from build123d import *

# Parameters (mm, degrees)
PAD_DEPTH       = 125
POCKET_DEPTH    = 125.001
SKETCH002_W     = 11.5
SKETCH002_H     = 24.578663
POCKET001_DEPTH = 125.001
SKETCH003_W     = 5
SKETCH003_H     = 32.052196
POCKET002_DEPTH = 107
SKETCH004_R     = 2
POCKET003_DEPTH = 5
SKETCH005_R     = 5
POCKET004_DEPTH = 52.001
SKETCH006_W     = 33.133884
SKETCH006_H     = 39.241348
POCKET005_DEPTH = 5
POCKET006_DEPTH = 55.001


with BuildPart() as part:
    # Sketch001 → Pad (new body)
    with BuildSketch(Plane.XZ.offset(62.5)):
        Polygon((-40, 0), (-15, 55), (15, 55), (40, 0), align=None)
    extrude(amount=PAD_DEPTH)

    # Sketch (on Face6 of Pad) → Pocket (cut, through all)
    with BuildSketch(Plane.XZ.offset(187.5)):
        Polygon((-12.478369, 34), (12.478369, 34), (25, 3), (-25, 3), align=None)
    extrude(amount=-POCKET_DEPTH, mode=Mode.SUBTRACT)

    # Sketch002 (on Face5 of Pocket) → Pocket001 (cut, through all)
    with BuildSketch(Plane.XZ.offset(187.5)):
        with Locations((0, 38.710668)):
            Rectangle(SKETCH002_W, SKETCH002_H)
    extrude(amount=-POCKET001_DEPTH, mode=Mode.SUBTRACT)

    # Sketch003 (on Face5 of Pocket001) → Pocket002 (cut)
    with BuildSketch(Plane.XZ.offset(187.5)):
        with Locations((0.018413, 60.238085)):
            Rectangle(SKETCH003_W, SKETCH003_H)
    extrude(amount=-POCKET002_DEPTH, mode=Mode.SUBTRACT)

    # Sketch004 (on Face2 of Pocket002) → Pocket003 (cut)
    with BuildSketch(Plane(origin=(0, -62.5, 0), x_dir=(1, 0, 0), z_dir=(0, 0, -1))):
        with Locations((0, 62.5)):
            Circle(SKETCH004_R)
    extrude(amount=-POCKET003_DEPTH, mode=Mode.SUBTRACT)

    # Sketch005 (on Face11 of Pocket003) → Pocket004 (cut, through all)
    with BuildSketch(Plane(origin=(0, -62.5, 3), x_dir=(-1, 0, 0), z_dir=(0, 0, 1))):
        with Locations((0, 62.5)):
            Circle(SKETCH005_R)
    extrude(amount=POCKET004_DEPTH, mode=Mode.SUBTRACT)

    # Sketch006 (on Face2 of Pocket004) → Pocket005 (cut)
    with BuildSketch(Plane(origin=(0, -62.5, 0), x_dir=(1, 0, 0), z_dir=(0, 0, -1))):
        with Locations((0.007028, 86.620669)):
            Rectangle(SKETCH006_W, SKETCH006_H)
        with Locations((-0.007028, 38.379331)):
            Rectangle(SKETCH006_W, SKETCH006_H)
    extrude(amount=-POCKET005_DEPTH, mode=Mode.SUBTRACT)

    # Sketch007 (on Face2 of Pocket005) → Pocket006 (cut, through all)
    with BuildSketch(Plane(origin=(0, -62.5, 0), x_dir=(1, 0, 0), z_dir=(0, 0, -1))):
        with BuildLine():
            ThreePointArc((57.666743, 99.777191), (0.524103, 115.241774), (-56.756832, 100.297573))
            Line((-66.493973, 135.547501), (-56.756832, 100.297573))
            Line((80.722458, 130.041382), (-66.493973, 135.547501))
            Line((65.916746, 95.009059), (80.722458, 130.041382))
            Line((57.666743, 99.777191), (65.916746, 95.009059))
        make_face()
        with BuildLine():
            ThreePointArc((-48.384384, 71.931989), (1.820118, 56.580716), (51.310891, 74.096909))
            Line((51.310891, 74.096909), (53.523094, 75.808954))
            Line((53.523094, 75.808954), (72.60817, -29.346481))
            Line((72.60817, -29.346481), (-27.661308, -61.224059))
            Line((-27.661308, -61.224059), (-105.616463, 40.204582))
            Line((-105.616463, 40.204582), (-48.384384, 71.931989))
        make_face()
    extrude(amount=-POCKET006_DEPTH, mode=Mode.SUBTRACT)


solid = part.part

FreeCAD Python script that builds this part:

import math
import FreeCAD as App
import Part
import Sketcher
from FreeCAD import Vector


def add_polygon(sketch, points):
    """Adds a closed chain of lines whose ends are joined by coincident constraints."""
    first, n = sketch.GeometryCount, len(points)
    for a, b in zip(points, points[1:] + points[:1]):
        sketch.addGeometry(Part.LineSegment(App.Vector(*a, 0), App.Vector(*b, 0)), False)
    for i in range(n):
        sketch.addConstraint(Sketcher.Constraint("Coincident", first + i, 2, first + (i + 1) % n, 1))

doc = App.newDocument("Part")
params = doc.addObject("Spreadsheet::Sheet", "Params")
for row, (alias, value) in enumerate([
    ("sketch1_width", "80 mm"),
    ("sketch1_width2", "30 mm"),
    ("pad1_length", "125 mm"),
    ("sketch2_width", "50 mm"),
    ("sketch3_width", "11.5 mm"),
    ("sketch4_width", "5 mm"),
    ("pocket3_length", "107 mm"),
    ("sketch5_diameter", "4 mm"),
    ("pocket4_length", "5 mm"),
    ("sketch6_diameter", "10 mm"),
    ("pocket6_length", "5 mm"),
], start=1):
    params.set(f"A{row}", alias)
    params.set(f"B{row}", "=" + value)
    params.setAlias(f"B{row}", alias)

body = doc.addObject("PartDesign::Body", "Body")

# Sketch on XZ plane
sketch1 = body.newObject("Sketcher::SketchObject", "Sketch")
sketch1.AttachmentSupport = (doc.getObject("XZ_Plane"), [""])
sketch1.MapMode = "FlatFace"
sketch1.AttachmentOffset = App.Placement(Vector(0, 0, 62.5), App.Rotation())
add_polygon(sketch1, [(-15, 55), (-40, 0), (40, 0), (15, 55)])  # lines 0-3
sketch1.addConstraint([
    Sketcher.Constraint("Horizontal", 1),
    Sketcher.Constraint("Horizontal", 3),
    Sketcher.Constraint("Symmetric", 0, 2, 1, 2, -1, 1),
    Sketcher.Constraint("Equal", 0, 2),
    Sketcher.Constraint("DistanceX", 1, 1, 1, 2, 80.0),
    Sketcher.Constraint("DistanceX", 3, 2, 3, 1, 30.0),
    Sketcher.Constraint("DistanceY", -1, 1, 2, 2, 55.0),
])
sketch1.setExpression("Constraints[8]", "Params.sketch1_width")
sketch1.setExpression("Constraints[9]", "Params.sketch1_width2")
pad1 = body.newObject("PartDesign::Pad", "Pad")
pad1.Profile = sketch1
pad1.setExpression("Length", "Params.pad1_length")

# Sketch on XZ plane
sketch2 = body.newObject("Sketcher::SketchObject", "Sketch001")
sketch2.AttachmentSupport = (doc.getObject("XZ_Plane"), [""])
sketch2.MapMode = "FlatFace"
sketch2.AttachmentOffset = App.Placement(Vector(0, 0, 187.5), App.Rotation())
add_polygon(sketch2, [(12, 34), (-12, 34), (-25, 3), (25, 3)])  # lines 0-3
sketch2.addConstraint([
    Sketcher.Constraint("Horizontal", 0),
    Sketcher.Constraint("Horizontal", 2),
    Sketcher.Constraint("Equal", 1, 3),
    Sketcher.Constraint("DistanceX", 2, 1, 2, 2, 50.0),
    Sketcher.Constraint("DistanceY", -1, 1, 0, 2, 34.0),
    Sketcher.Constraint("DistanceX", 1, 2, -1, 1, 25.0),
    Sketcher.Constraint("DistanceY", -1, 1, 1, 2, 3.0),
    Sketcher.Constraint("DistanceX", 0, 2, 0, 1, 24.956738),
])
sketch2.setExpression("Constraints[7]", "Params.sketch2_width")
pocket1 = body.newObject("PartDesign::Pocket", "Pocket")
pocket1.Profile = sketch2
pocket1.Type = "ThroughAll"

# Sketch on XZ plane
sketch3 = body.newObject("Sketcher::SketchObject", "Sketch002")
sketch3.AttachmentSupport = (doc.getObject("XZ_Plane"), [""])
sketch3.MapMode = "FlatFace"
sketch3.AttachmentOffset = App.Placement(Vector(0, 0, 187.5), App.Rotation())
add_polygon(sketch3, [(-6, 51), (-6, 26), (6, 26), (6, 51)])  # lines 0-3
sketch3.addConstraint([
    Sketcher.Constraint("Vertical", 0),
    Sketcher.Constraint("Horizontal", 1),
    Sketcher.Constraint("Vertical", 2),
    Sketcher.Constraint("Horizontal", 3),
    Sketcher.Constraint("DistanceX", 1, 1, 1, 2, 11.5),
    Sketcher.Constraint("DistanceY", -1, 1, 2, 2, 51.0),
    Sketcher.Constraint("DistanceX", 0, 2, -1, 1, 5.75),
    Sketcher.Constraint("DistanceY", 0, 2, 0, 1, 24.578663),
])
sketch3.setExpression("Constraints[8]", "Params.sketch3_width")
pocket2 = body.newObject("PartDesign::Pocket", "Pocket001")
pocket2.Profile = sketch3
pocket2.Type = "ThroughAll"

# Sketch on XZ plane
sketch4 = body.newObject("Sketcher::SketchObject", "Sketch003")
sketch4.AttachmentSupport = (doc.getObject("XZ_Plane"), [""])
sketch4.MapMode = "FlatFace"
sketch4.AttachmentOffset = App.Placement(Vector(0, 0, 187.5), App.Rotation())
add_polygon(sketch4, [(-2, 76), (-2, 44), (3, 44), (3, 76)])  # lines 0-3
sketch4.addConstraint([
    Sketcher.Constraint("Vertical", 0),
    Sketcher.Constraint("Horizontal", 1),
    Sketcher.Constraint("Vertical", 2),
    Sketcher.Constraint("Horizontal", 3),
    Sketcher.Constraint("DistanceX", 1, 1, 1, 2, 5.0),
    Sketcher.Constraint("DistanceY", 0, 2, 0, 1, 32.052196),
    Sketcher.Constraint("DistanceX", 0, 2, -1, 1, 2.481587),
    Sketcher.Constraint("DistanceY", -1, 1, 0, 2, 44.211987),
])
sketch4.setExpression("Constraints[8]", "Params.sketch4_width")
pocket3 = body.newObject("PartDesign::Pocket", "Pocket002")
pocket3.Profile = sketch4
pocket3.setExpression("Length", "Params.pocket3_length")

# Sketch on XY plane
sketch5 = body.newObject("Sketcher::SketchObject", "Sketch004")
sketch5.AttachmentSupport = (doc.getObject("XY_Plane"), [""])
sketch5.MapMode = "FlatFace"
sketch5.addGeometry(Part.Circle(Vector(0, -125, 0), Vector(0, 0, 1), 2), False)
sketch5.addConstraint([
    Sketcher.Constraint("PointOnObject", 0, 3, -2),
    Sketcher.Constraint("Diameter", 0, 4.0),
    Sketcher.Constraint("DistanceY", 0, 3, -1, 1, 125.0),
])
sketch5.setExpression("Constraints[1]", "Params.sketch5_diameter")
pocket4 = body.newObject("PartDesign::Pocket", "Pocket003")
pocket4.Profile = sketch5
pocket4.setExpression("Length", "Params.pocket4_length")
pocket4.Reversed = True

# Sketch on XY plane
sketch6 = body.newObject("Sketcher::SketchObject", "Sketch005")
sketch6.AttachmentSupport = (doc.getObject("XY_Plane"), [""])
sketch6.MapMode = "FlatFace"
sketch6.AttachmentOffset = App.Placement(Vector(0, 0, 3), App.Rotation())
sketch6.addGeometry(Part.Circle(Vector(0, -125, 0), Vector(0, 0, 1), 5), False)
sketch6.addConstraint([
    Sketcher.Constraint("PointOnObject", 0, 3, -2),
    Sketcher.Constraint("Diameter", 0, 10.0),
    Sketcher.Constraint("DistanceY", 0, 3, -1, 1, 125.0),
])
sketch6.setExpression("Constraints[1]", "Params.sketch6_diameter")
pocket5 = body.newObject("PartDesign::Pocket", "Pocket004")
pocket5.Profile = sketch6
pocket5.Type = "ThroughAll"
pocket5.Reversed = True

# Sketch on XY plane
sketch7 = body.newObject("Sketcher::SketchObject", "Sketch006")
sketch7.AttachmentSupport = (doc.getObject("XY_Plane"), [""])
sketch7.MapMode = "FlatFace"
add_polygon(sketch7, [(-17, -169), (-17, -129), (17, -129), (17, -169)])  # lines 0-3
add_polygon(sketch7, [(-17, -121), (-17, -81), (17, -81), (17, -121)])  # lines 4-7
sketch7.addConstraint([
    Sketcher.Constraint("Vertical", 0),
    Sketcher.Constraint("Horizontal", 1),
    Sketcher.Constraint("Vertical", 2),
    Sketcher.Constraint("Horizontal", 3),
    Sketcher.Constraint("Vertical", 4),
    Sketcher.Constraint("Horizontal", 5),
    Sketcher.Constraint("Vertical", 6),
    Sketcher.Constraint("Horizontal", 7),
    Sketcher.Constraint("Equal", 3, 5),
    Sketcher.Constraint("Equal", 2, 4),
    Sketcher.Constraint("DistanceY", 4, 1, 4, 2, 39.241348),
    Sketcher.Constraint("DistanceX", 1, 1, 1, 2, 33.133884),
    Sketcher.Constraint("DistanceX", -1, 1, 1, 2, 16.57397),
    Sketcher.Constraint("DistanceX", 4, 2, -1, 1, 16.57397),
    Sketcher.Constraint("DistanceY", 0, 2, 4, 2, 48.241338),
    Sketcher.Constraint("DistanceY", 0, 2, -1, 1, 129.499995),
])
pocket6 = body.newObject("PartDesign::Pocket", "Pocket005")
pocket6.Profile = sketch7
pocket6.setExpression("Length", "Params.pocket6_length")
pocket6.Reversed = True

# Sketch on XY plane
sketch8 = body.newObject("Sketcher::SketchObject", "Sketch007")
sketch8.AttachmentSupport = (doc.getObject("XY_Plane"), [""])
sketch8.MapMode = "FlatFace"
sketch8.addGeometry([
    Part.ArcOfCircle(Part.Circle(Vector(0, -62.5, 0), Vector(0, 0, 1), 115.2), math.radians(-120), math.radians(-60)),  # 0
    Part.LineSegment(Vector(57.7, -162.3, 0), Vector(65.9, -157.5, 0)),  # 1
    Part.LineSegment(Vector(65.9, -157.5, 0), Vector(80.7, -192.5, 0)),  # 2
    Part.LineSegment(Vector(80.7, -192.5, 0), Vector(-66.5, -198, 0)),  # 3
    Part.LineSegment(Vector(-66.5, -198, 0), Vector(-56.8, -162.8, 0)),  # 4
    Part.ArcOfCircle(Part.Circle(Vector(0, -202.9, 0), Vector(0, 0, 1), 83.8), math.radians(52), math.radians(125)),  # 5
    Part.LineSegment(Vector(-48.4, -134.4, 0), Vector(-105.6, -102.7, 0)),  # 6
    Part.LineSegment(Vector(-105.6, -102.7, 0), Vector(-27.7, -1.3, 0)),  # 7
    Part.LineSegment(Vector(-27.7, -1.3, 0), Vector(72.6, -33.2, 0)),  # 8
    Part.LineSegment(Vector(72.6, -33.2, 0), Vector(53.5, -138.3, 0)),  # 9
    Part.LineSegment(Vector(53.5, -138.3, 0), Vector(51.3, -136.6, 0)),  # 10
], False)
sketch8.addConstraint([
    Sketcher.Constraint("Tangent", 0, 2, 1, 1),
    Sketcher.Constraint("Coincident", 1, 2, 2, 1),
    Sketcher.Constraint("Coincident", 2, 2, 3, 1),
    Sketcher.Constraint("Coincident", 3, 2, 4, 1),
    Sketcher.Constraint("Coincident", 4, 2, 0, 1),
    Sketcher.Constraint("Coincident", 5, 2, 6, 1),
    Sketcher.Constraint("Coincident", 6, 2, 7, 1),
    Sketcher.Constraint("Coincident", 7, 2, 8, 1),
    Sketcher.Constraint("Coincident", 8, 2, 9, 1),
    Sketcher.Constraint("Coincident", 9, 2, 10, 1),
    Sketcher.Constraint("Tangent", 10, 2, 5, 1),
    Sketcher.Constraint("PointOnObject", 0, 3, -2),
    Sketcher.Constraint("PointOnObject", 5, 3, -2),
    Sketcher.Constraint("DistanceY", 0, 3, -1, 1, 62.500002),
    Sketcher.Constraint("Radius", 0, 115.242964),
    Sketcher.Constraint("Radius", 5, 83.836825),
    Sketcher.Constraint("DistanceY", 3, 2, -1, 1, 198.047501),
    Sketcher.Constraint("DistanceY", 5, 3, 2, 2, 10.356399),
    Sketcher.Constraint("DistanceY", 5, 3, 6, 2, 100.193199),
    Sketcher.Constraint("Distance", 1, 9.528779),
    Sketcher.Constraint("Distance", 4, 36.570061),
    Sketcher.Constraint("Distance", 7, 127.924882),
    Sketcher.Constraint("Distance", 8, 105.214772),
    Sketcher.Constraint("Distance", 10, 2.797309),
    Sketcher.Constraint("DistanceY", 5, 3, -1, 1, 202.897781),
    Sketcher.Constraint("DistanceY", 0, 2, -1, 1, 162.277191),
    Sketcher.Constraint("DistanceX", -1, 1, 2, 2, 80.722458),
    Sketcher.Constraint("DistanceY", 5, 2, -1, 1, 134.431989),
    Sketcher.Constraint("DistanceY", 7, 2, -1, 1, 1.275941),
    Sketcher.Constraint("DistanceX", -1, 1, 8, 2, 72.60817),
    Sketcher.Constraint("DistanceY", 8, 2, -1, 1, 33.153519),
    Sketcher.Constraint("DistanceX", -1, 1, 10, 2, 51.310891),
    Sketcher.Constraint("DistanceX", 3, 2, 1, 2, 132.410719),
])
pocket7 = body.newObject("PartDesign::Pocket", "Pocket006")
pocket7.Profile = sketch8
pocket7.Type = "ThroughAll"
pocket7.Reversed = True

doc.recompute()
